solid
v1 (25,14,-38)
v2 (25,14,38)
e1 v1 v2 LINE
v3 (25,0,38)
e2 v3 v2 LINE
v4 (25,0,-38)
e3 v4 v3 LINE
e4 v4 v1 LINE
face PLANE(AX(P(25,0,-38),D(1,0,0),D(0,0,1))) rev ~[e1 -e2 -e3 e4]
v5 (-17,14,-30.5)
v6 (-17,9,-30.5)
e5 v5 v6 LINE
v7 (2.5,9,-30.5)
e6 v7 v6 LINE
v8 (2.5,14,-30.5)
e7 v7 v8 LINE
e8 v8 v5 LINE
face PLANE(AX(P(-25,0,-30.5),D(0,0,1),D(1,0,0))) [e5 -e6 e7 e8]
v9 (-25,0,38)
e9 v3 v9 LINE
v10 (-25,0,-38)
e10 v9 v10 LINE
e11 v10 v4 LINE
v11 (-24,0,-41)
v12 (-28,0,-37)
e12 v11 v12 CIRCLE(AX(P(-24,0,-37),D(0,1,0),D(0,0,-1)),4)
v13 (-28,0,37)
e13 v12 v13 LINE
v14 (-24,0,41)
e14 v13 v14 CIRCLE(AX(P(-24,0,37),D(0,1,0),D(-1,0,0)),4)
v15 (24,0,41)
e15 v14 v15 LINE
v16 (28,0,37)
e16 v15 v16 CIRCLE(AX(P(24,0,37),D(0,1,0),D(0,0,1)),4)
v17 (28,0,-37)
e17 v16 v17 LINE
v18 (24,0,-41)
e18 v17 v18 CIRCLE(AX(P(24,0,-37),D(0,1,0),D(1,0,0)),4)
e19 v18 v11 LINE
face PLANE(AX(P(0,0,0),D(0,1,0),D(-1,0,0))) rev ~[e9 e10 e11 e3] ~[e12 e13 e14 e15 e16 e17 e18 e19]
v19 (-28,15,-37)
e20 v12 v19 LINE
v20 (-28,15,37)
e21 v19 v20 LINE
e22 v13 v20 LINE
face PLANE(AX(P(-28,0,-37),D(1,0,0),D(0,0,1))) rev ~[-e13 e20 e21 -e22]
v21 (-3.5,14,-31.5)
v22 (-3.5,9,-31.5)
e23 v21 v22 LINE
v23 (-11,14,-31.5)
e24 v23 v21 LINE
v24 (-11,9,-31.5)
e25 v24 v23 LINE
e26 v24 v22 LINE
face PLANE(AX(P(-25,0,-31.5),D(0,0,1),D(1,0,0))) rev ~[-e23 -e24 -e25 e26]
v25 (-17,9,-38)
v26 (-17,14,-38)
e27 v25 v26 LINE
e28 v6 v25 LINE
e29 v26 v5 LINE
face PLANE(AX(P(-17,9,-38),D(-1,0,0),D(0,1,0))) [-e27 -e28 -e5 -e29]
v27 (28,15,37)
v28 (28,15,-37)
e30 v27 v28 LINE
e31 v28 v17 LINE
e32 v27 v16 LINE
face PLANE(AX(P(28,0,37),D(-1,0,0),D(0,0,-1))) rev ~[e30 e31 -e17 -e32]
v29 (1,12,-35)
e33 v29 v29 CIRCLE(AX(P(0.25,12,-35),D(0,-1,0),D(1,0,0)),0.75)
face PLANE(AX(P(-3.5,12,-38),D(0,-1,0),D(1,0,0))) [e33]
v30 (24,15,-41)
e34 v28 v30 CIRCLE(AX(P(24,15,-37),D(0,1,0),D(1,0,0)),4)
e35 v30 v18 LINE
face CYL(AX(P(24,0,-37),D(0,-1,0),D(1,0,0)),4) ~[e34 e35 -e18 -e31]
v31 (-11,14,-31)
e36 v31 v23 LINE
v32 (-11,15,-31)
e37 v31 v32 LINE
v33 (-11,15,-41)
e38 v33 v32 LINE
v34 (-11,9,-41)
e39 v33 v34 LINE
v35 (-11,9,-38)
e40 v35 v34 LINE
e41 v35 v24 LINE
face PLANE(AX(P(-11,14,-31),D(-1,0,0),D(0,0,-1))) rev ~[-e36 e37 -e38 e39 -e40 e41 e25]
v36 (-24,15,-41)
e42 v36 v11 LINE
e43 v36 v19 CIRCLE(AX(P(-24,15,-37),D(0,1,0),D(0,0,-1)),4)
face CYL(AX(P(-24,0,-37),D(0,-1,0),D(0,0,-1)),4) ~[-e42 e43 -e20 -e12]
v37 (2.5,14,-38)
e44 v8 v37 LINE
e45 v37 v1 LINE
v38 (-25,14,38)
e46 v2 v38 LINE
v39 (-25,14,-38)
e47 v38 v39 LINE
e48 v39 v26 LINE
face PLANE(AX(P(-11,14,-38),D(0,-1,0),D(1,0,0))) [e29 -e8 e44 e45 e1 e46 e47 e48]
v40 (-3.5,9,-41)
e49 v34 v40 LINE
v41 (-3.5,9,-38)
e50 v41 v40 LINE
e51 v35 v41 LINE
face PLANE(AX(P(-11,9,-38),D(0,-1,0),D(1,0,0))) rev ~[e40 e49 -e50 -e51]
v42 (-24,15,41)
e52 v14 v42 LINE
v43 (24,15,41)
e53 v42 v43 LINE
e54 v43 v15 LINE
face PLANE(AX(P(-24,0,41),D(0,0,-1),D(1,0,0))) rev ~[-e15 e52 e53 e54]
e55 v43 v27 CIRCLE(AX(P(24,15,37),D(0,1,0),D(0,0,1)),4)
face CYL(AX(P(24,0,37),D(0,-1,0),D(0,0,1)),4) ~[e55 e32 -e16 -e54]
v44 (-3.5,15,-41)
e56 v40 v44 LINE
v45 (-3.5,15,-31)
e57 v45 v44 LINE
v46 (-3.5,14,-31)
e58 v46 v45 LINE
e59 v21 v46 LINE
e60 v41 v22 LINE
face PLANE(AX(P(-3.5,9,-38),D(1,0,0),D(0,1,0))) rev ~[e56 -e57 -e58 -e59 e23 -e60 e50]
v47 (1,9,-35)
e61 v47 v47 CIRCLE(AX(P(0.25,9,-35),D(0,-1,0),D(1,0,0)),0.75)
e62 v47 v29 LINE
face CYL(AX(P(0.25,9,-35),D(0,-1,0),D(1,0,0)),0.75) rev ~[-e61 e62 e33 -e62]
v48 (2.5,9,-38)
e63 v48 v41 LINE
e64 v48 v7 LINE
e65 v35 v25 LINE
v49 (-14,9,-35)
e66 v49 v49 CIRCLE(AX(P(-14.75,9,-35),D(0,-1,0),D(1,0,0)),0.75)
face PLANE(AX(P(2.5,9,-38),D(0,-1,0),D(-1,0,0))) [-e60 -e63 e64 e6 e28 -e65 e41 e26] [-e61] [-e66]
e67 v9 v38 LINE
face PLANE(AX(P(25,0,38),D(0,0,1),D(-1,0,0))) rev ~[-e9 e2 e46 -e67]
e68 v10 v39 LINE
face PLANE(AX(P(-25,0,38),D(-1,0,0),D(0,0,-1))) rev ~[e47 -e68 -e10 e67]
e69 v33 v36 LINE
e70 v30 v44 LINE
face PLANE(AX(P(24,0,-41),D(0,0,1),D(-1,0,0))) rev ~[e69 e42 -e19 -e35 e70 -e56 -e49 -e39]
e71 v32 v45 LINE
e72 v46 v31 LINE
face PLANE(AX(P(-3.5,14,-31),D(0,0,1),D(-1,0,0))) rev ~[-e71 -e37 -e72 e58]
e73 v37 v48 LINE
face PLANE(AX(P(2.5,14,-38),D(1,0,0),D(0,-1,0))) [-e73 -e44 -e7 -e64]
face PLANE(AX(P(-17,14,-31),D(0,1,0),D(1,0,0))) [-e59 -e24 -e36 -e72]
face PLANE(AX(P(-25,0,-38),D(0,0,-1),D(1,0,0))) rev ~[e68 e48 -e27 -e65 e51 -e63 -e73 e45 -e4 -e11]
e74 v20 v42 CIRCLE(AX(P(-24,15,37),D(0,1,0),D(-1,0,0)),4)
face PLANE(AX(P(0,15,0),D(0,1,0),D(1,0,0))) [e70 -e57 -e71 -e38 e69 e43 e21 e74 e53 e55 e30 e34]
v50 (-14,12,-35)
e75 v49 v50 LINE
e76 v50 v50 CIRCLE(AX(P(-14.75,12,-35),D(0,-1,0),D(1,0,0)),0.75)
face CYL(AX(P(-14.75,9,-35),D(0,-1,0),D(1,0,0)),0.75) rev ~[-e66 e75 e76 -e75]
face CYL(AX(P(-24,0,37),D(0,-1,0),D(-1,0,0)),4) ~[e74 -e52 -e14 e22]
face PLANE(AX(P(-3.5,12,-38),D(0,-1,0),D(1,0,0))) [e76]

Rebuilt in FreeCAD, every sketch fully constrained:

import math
import FreeCAD as App
import Part
import Sketcher
from FreeCAD import Vector

doc = App.newDocument("Part")
body = doc.addObject("PartDesign::Body", "Body")

# Sketch on XZ plane
sketch1 = body.newObject("Sketcher::SketchObject", "Sketch")
sketch1.AttachmentSupport = (doc.getObject("XZ_Plane"), [""])
sketch1.MapMode = "FlatFace"
sketch1.addGeometry([
    Part.ArcOfCircle(Part.Circle(Vector(-24, -37, 0), Vector(0, 0, 1), 4), math.radians(180), math.radians(270)),  # 0
    Part.LineSegment(Vector(-28, -37, 0), Vector(-28, 37, 0)),  # 1
    Part.ArcOfCircle(Part.Circle(Vector(-24, 37, 0), Vector(0, 0, 1), 4), math.radians(90), math.radians(180)),  # 2
    Part.LineSegment(Vector(-24, 41, 0), Vector(24, 41, 0)),  # 3
    Part.ArcOfCircle(Part.Circle(Vector(24, 37, 0), Vector(0, 0, 1), 4), math.radians(0), math.radians(90)),  # 4
    Part.LineSegment(Vector(28, 37, 0), Vector(28, -37, 0)),  # 5
    Part.ArcOfCircle(Part.Circle(Vector(24, -37, 0), Vector(0, 0, 1), 4), math.radians(-90), math.radians(0)),  # 6
    Part.LineSegment(Vector(24, -41, 0), Vector(-24, -41, 0)),  # 7
    Part.LineSegment(Vector(25, -38, 0), Vector(25, 38, 0)),  # 8
    Part.LineSegment(Vector(25, 38, 0), Vector(-25, 38, 0)),  # 9
    Part.LineSegment(Vector(-25, 38, 0), Vector(-25, -38, 0)),  # 10
    Part.LineSegment(Vector(-25, -38, 0), Vector(25, -38, 0)),  # 11
], False)
sketch1.addConstraint([
    Sketcher.Constraint("Tangent", 0, 1, 1, 1),
    Sketcher.Constraint("Tangent", 1, 2, 2, 2),
    Sketcher.Constraint("Tangent", 2, 1, 3, 1),
    Sketcher.Constraint("Tangent", 3, 2, 4, 2),
    Sketcher.Constraint("Tangent", 4, 1, 5, 1),
    Sketcher.Constraint("Tangent", 5, 2, 6, 2),
    Sketcher.Constraint("Tangent", 6, 1, 7, 1),
    Sketcher.Constraint("Tangent", 7, 2, 0, 2),
    Sketcher.Constraint("Coincident", 8, 2, 9, 1),
    Sketcher.Constraint("Coincident", 9, 2, 10, 1),
    Sketcher.Constraint("Coincident", 10, 2, 11, 1),
    Sketcher.Constraint("Coincident", 11, 2, 8, 1),
    Sketcher.Constraint("Vertical", 1),
    Sketcher.Constraint("Horizontal", 3),
    Sketcher.Constraint("Vertical", 5),
    Sketcher.Constraint("Horizontal", 7),
    Sketcher.Constraint("Vertical", 8),
    Sketcher.Constraint("Horizontal", 9),
    Sketcher.Constraint("Vertical", 10),
    Sketcher.Constraint("Horizontal", 11),
    Sketcher.Constraint("Equal", 0, 2),
    Sketcher.Constraint("Equal", 2, 4),
    Sketcher.Constraint("Equal", 4, 6),
    Sketcher.Constraint("Symmetric", 0, 3, 4, 3, -1, 1),
    Sketcher.Constraint("Symmetric", 8, 2, 10, 2, -1, 1),
    Sketcher.Constraint("Radius", 0, 4.0),
    Sketcher.Constraint("DistanceX", 9, 2, 9, 1, 50.0),
    Sketcher.Constraint("DistanceY", 8, 1, 8, 2, 76.0),
    Sketcher.Constraint("DistanceY", 8, 2, 3, 2, 3.0),
    Sketcher.Constraint("DistanceX", 8, 2, 4, 1, 3.0),
])
pad1 = body.newObject("PartDesign::Pad", "Pad")
pad1.Profile = sketch1
pad1.Length = 14
pad1.Reversed = True

# Sketch on XZ plane
sketch2 = body.newObject("Sketcher::SketchObject", "Sketch001")
sketch2.AttachmentSupport = (doc.getObject("XZ_Plane"), [""])
sketch2.MapMode = "FlatFace"
sketch2.AttachmentOffset = App.Placement(Vector(0, 0, -14), App.Rotation())
sketch2.addGeometry([
    Part.LineSegment(Vector(-28, -37, 0), Vector(-28, 37, 0)),  # 0
    Part.ArcOfCircle(Part.Circle(Vector(-24, 37, 0), Vector(0, 0, 1), 4), math.radians(90), math.radians(180)),  # 1
    Part.LineSegment(Vector(-24, 41, 0), Vector(24, 41, 0)),  # 2
    Part.ArcOfCircle(Part.Circle(Vector(24, 37, 0), Vector(0, 0, 1), 4), math.radians(0), math.radians(90)),  # 3
    Part.LineSegment(Vector(28, 37, 0), Vector(28, -37, 0)),  # 4
    Part.ArcOfCircle(Part.Circle(Vector(24, -37, 0), Vector(0, 0, 1), 4), math.radians(-90), math.radians(0)),  # 5
    Part.LineSegment(Vector(24, -41, 0), Vector(-24, -41, 0)),  # 6
    Part.ArcOfCircle(Part.Circle(Vector(-24, -37, 0), Vector(0, 0, 1), 4), math.radians(180), math.radians(270)),  # 7
], False)
sketch2.addConstraint([
    Sketcher.Constraint("Tangent", 0, 2, 1, 2),
    Sketcher.Constraint("Tangent", 1, 1, 2, 1),
    Sketcher.Constraint("Tangent", 2, 2, 3, 2),
    Sketcher.Constraint("Tangent", 3, 1, 4, 1),
    Sketcher.Constraint("Tangent", 4, 2, 5, 2),
    Sketcher.Constraint("Tangent", 5, 1, 6, 1),
    Sketcher.Constraint("Tangent", 6, 2, 7, 2),
    Sketcher.Constraint("Tangent", 7, 1, 0, 1),
    Sketcher.Constraint("Vertical", 0),
    Sketcher.Constraint("Horizontal", 2),
    Sketcher.Constraint("Vertical", 4),
    Sketcher.Constraint("Horizontal", 6),
    Sketcher.Constraint("Equal", 1, 3),
    Sketcher.Constraint("Equal", 3, 5),
    Sketcher.Constraint("Equal", 5, 7),
    Sketcher.Constraint("Symmetric", 1, 3, 5, 3, -1, 1),
    Sketcher.Constraint("Radius", 1, 4.0),
    Sketcher.Constraint("DistanceX", 2, 1, 2, 2, 48.0),
    Sketcher.Constraint("DistanceY", 0, 1, 0, 2, 74.0),
])
pad2 = body.newObject("PartDesign::Pad", "Pad001")
pad2.Profile = sketch2
pad2.Length = 1
pad2.Reversed = True

# Sketch on XY plane
sketch3 = body.newObject("Sketcher::SketchObject", "Sketch002")
sketch3.AttachmentSupport = (doc.getObject("XY_Plane"), [""])
sketch3.MapMode = "FlatFace"
sketch3.AttachmentOffset = App.Placement(Vector(0, 0, -38), App.Rotation())
sketch3.addGeometry([
    Part.LineSegment(Vector(-4, 9, 0), Vector(-4, 14, 0)),
    Part.LineSegment(Vector(-4, 14, 0), Vector(-11, 14, 0)),
    Part.LineSegment(Vector(-11, 14, 0), Vector(-11, 9, 0)),
    Part.LineSegment(Vector(-11, 9, 0), Vector(-4, 9, 0)),
], False)
sketch3.addConstraint([
    Sketcher.Constraint("Coincident", 0, 2, 1, 1),
    Sketcher.Constraint("Coincident", 1, 2, 2, 1),
    Sketcher.Constraint("Coincident", 2, 2, 3, 1),
    Sketcher.Constraint("Coincident", 3, 2, 0, 1),
    Sketcher.Constraint("Vertical", 0),
    Sketcher.Constraint("Horizontal", 1),
    Sketcher.Constraint("Vertical", 2),
    Sketcher.Constraint("Horizontal", 3),
    Sketcher.Constraint("DistanceY", 0, 1, 0, 2, 5.0),
    Sketcher.Constraint("DistanceX", 1, 2, 1, 1, 7.5),
    Sketcher.Constraint("DistanceY", -1, 1, 0, 2, 14.0),
    Sketcher.Constraint("DistanceX", 1, 2, -1, 1, 11.0),
])
pocket1 = body.newObject("PartDesign::Pocket", "Pocket")
pocket1.Profile = sketch3
pocket1.Type = "ThroughAll"

# Sketch on XY plane
sketch4 = body.newObject("Sketcher::SketchObject", "Sketch003")
sketch4.AttachmentSupport = (doc.getObject("XY_Plane"), [""])
sketch4.MapMode = "FlatFace"
sketch4.AttachmentOffset = App.Placement(Vector(0, 0, -38), App.Rotation())
sketch4.addGeometry([
    Part.LineSegment(Vector(2, 14, 0), Vector(-4, 14, 0)),  # 0
    Part.LineSegment(Vector(-4, 14, 0), Vector(-4, 9, 0)),  # 1
    Part.LineSegment(Vector(-4, 9, 0), Vector(2, 9, 0)),  # 2
    Part.LineSegment(Vector(2, 9, 0), Vector(2, 14, 0)),  # 3
    Part.LineSegment(Vector(-17, 9, 0), Vector(-11, 9, 0)),  # 4
    Part.LineSegment(Vector(-11, 9, 0), Vector(-11, 14, 0)),  # 5
    Part.LineSegment(Vector(-11, 14, 0), Vector(-17, 14, 0)),  # 6
    Part.LineSegment(Vector(-17, 14, 0), Vector(-17, 9, 0)),  # 7
], False)
sketch4.addConstraint([
    Sketcher.Constraint("Coincident", 0, 2, 1, 1),
    Sketcher.Constraint("Coincident", 1, 2, 2, 1),
    Sketcher.Constraint("Coincident", 2, 2, 3, 1),
    Sketcher.Constraint("Coincident", 3, 2, 0, 1),
    Sketcher.Constraint("Coincident", 4, 2, 5, 1),
    Sketcher.Constraint("Coincident", 5, 2, 6, 1),
    Sketcher.Constraint("Coincident", 6, 2, 7, 1),
    Sketcher.Constraint("Coincident", 7, 2, 4, 1),
    Sketcher.Constraint("Horizontal", 0),
    Sketcher.Constraint("Vertical", 1),
    Sketcher.Constraint("Horizontal", 2),
    Sketcher.Constraint("Vertical", 3),
    Sketcher.Constraint("Horizontal", 4),
    Sketcher.Constraint("Vertical", 5),
    Sketcher.Constraint("Horizontal", 6),
    Sketcher.Constraint("Vertical", 7),
    Sketcher.Constraint("Horizontal", 2, 2, 4, 2),
    Sketcher.Constraint("Horizontal", 3, 2, 5, 2),
    Sketcher.Constraint("Equal", 2, 4),
    Sketcher.Constraint("DistanceX", 0, 2, 0, 1, 6.0),
    Sketcher.Constraint("DistanceY", 1, 2, 1, 1, 5.0),
    Sketcher.Constraint("DistanceY", -1, 1, 0, 2, 14.0),
    Sketcher.Constraint("DistanceX", 4, 2, -1, 1, 11.0),
    Sketcher.Constraint("DistanceX", 0, 2, -1, 1, 3.5),
])
pad3 = body.newObject("PartDesign::Pad", "Pad002")
pad3.Profile = sketch4
pad3.Length = 7

# Sketch on XZ plane
sketch5 = body.newObject("Sketcher::SketchObject", "Sketch004")
sketch5.AttachmentSupport = (doc.getObject("XZ_Plane"), [""])
sketch5.MapMode = "FlatFace"
sketch5.AttachmentOffset = App.Placement(Vector(0, 0, -14), App.Rotation())
sketch5.addGeometry([
    Part.LineSegment(Vector(-11, -41, 0), Vector(-4, -41, 0)),
    Part.LineSegment(Vector(-4, -41, 0), Vector(-4, -31, 0)),
    Part.LineSegment(Vector(-4, -31, 0), Vector(-11, -31, 0)),
    Part.LineSegment(Vector(-11, -31, 0), Vector(-11, -41, 0)),
], False)
sketch5.addConstraint([
    Sketcher.Constraint("Coincident", 0, 2, 1, 1),
    Sketcher.Constraint("Coincident", 1, 2, 2, 1),
    Sketcher.Constraint("Coincident", 2, 2, 3, 1),
    Sketcher.Constraint("Coincident", 3, 2, 0, 1),
    Sketcher.Constraint("Horizontal", 0),
    Sketcher.Constraint("Vertical", 1),
    Sketcher.Constraint("Horizontal", 2),
    Sketcher.Constraint("Vertical", 3),
    Sketcher.Constraint("DistanceY", 1, 1, 1, 2, 10.0),
    Sketcher.Constraint("DistanceX", 0, 1, 0, 2, 7.5),
    Sketcher.Constraint("DistanceY", 0, 2, -1, 1, 41.0),
    Sketcher.Constraint("DistanceX", 2, 2, -1, 1, 11.0),
])
pocket2 = body.newObject("PartDesign::Pocket", "Pocket001")
pocket2.Profile = sketch5
pocket2.Length = 7

# Sketch on XZ plane
sketch6 = body.newObject("Sketcher::SketchObject", "Sketch005")
sketch6.AttachmentSupport = (doc.getObject("XZ_Plane"), [""])
sketch6.MapMode = "FlatFace"
sketch6.AttachmentOffset = App.Placement(Vector(0, 0, -9), App.Rotation())
sketch6.addGeometry([
    Part.Circle(Vector(-14.8, -35, 0), Vector(0, 0, 1), 0.8),
    Part.Circle(Vector(0.2, -35, 0), Vector(0, 0, 1), 0.8),
], False)
sketch6.addConstraint([
    Sketcher.Constraint("Equal", 0, 1),
    Sketcher.Constraint("Horizontal", 0, 3, 1, 3),
    Sketcher.Constraint("Diameter", 0, 1.5),
    Sketcher.Constraint("DistanceX", 0, 3, 1, 3, 15.0),
    Sketcher.Constraint("DistanceY", 0, 3, -1, 1, 35.0),
    Sketcher.Constraint("DistanceX", 0, 3, -1, 1, 14.75),
])
pocket3 = body.newObject("PartDesign::Pocket", "Pocket002")
pocket3.Profile = sketch6
pocket3.Length = 3

# Sketch on XY plane
sketch7 = body.newObject("Sketcher::SketchObject", "Sketch006")
sketch7.AttachmentSupport = (doc.getObject("XY_Plane"), [""])
sketch7.MapMode = "FlatFace"
sketch7.AttachmentOffset = App.Placement(Vector(0, 0, -31), App.Rotation())
sketch7.addGeometry([
    Part.LineSegment(Vector(-17, 9, 0), Vector(2, 9, 0)),
    Part.LineSegment(Vector(2, 9, 0), Vector(2, 14, 0)),
    Part.LineSegment(Vector(2, 14, 0), Vector(-17, 14, 0)),
    Part.LineSegment(Vector(-17, 14, 0), Vector(-17, 9, 0)),
], False)
sketch7.addConstraint([
    Sketcher.Constraint("Coincident", 0, 2, 1, 1),
    Sketcher.Constraint("Coincident", 1, 2, 2, 1),
    Sketcher.Constraint("Coincident", 2, 2, 3, 1),
    Sketcher.Constraint("Coincident", 3, 2, 0, 1),
    Sketcher.Constraint("Horizontal", 0),
    Sketcher.Constraint("Vertical", 1),
    Sketcher.Constraint("Horizontal", 2),
    Sketcher.Constraint("Vertical", 3),
    Sketcher.Constraint("DistanceY", 1, 1, 1, 2, 5.0),
    Sketcher.Constraint("DistanceX", 0, 1, 0, 2, 19.5),
    Sketcher.Constraint("DistanceY", -1, 1, 0, 2, 9.0),
    Sketcher.Constraint("DistanceX", 2, 2, -1, 1, 17.0),
])
pad4 = body.newObject("PartDesign::Pad", "Pad003")
pad4.Profile = sketch7
pad4.Length = 1
pad4.Midplane = True

doc.recompute()
